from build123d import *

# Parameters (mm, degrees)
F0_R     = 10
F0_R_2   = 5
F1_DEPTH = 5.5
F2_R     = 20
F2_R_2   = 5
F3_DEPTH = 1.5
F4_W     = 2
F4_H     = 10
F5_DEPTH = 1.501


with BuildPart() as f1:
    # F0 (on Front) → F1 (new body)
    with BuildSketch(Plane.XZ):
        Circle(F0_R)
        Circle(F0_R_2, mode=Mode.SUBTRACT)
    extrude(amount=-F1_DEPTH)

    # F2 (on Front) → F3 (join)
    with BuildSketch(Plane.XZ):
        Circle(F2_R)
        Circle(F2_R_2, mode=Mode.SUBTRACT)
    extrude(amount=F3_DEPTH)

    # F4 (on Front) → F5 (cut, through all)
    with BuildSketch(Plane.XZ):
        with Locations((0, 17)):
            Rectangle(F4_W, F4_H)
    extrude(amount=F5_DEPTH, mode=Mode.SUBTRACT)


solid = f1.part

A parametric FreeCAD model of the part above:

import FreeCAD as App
import Part
import Sketcher
from FreeCAD import Vector


def add_polygon(sketch, points):
    """Adds a closed chain of lines whose ends are joined by coincident constraints."""
    first, n = sketch.GeometryCount, len(points)
    for a, b in zip(points, points[1:] + points[:1]):
        sketch.addGeometry(Part.LineSegment(App.Vector(*a, 0), App.Vector(*b, 0)), False)
    for i in range(n):
        sketch.addConstraint(Sketcher.Constraint("Coincident", first + i, 2, first + (i + 1) % n, 1))

doc = App.newDocument("Part")
body = doc.addObject("PartDesign::Body", "Body")

sketch1 = body.newObject("Sketcher::SketchObject", "Sketch")
sketch1.AttachmentSupport = (doc.getObject("XZ_Plane"), [""])
sketch1.MapMode = "FlatFace"
sketch1.addGeometry(Part.Circle(Vector(0, 0, 0), Vector(0, 0, 1), 10), False)
sketch1.addGeometry(Part.Circle(Vector(0, 0, 0), Vector(0, 0, 1), 5), False)
sketch1.addConstraint(Sketcher.Constraint("Coincident", 0, 3, -1, 1))
sketch1.addConstraint(Sketcher.Constraint("Coincident", 1, 3, -1, 1))
sketch1.addConstraint(Sketcher.Constraint("Diameter", 0, 20.0))
sketch1.addConstraint(Sketcher.Constraint("Diameter", 1, 10.0))
pad1 = body.newObject("PartDesign::Pad", "Pad")
pad1.Profile = sketch1
pad1.Length = 5.5
pad1.Reversed = True

sketch2 = body.newObject("Sketcher::SketchObject", "Sketch001")
sketch2.AttachmentSupport = (doc.getObject("XZ_Plane"), [""])
sketch2.MapMode = "FlatFace"
sketch2.addGeometry(Part.Circle(Vector(0, 0, 0), Vector(0, 0, 1), 20), False)
sketch2.addGeometry(Part.Circle(Vector(0, 0, 0), Vector(0, 0, 1), 5), False)
sketch2.addConstraint(Sketcher.Constraint("Coincident", 0, 3, -1, 1))
sketch2.addConstraint(Sketcher.Constraint("Coincident", 1, 3, -1, 1))
sketch2.addConstraint(Sketcher.Constraint("Diameter", 0, 40.0))
sketch2.addConstraint(Sketcher.Constraint("Diameter", 1, 10.0))
pad2 = body.newObject("PartDesign::Pad", "Pad001")
pad2.Profile = sketch2
pad2.Length = 1.5

sketch3 = body.newObject("Sketcher::SketchObject", "Sketch002")
sketch3.AttachmentSupport = (doc.getObject("XZ_Plane"), [""])
sketch3.MapMode = "FlatFace"
add_polygon(sketch3, [(-1, 22), (-1, 12), (1, 12), (1, 22)])
sketch3.addConstraint(Sketcher.Constraint("Vertical", 0))
sketch3.addConstraint(Sketcher.Constraint("Horizontal", 1))
sketch3.addConstraint(Sketcher.Constraint("Vertical", 2))
sketch3.addConstraint(Sketcher.Constraint("Horizontal", 3))
sketch3.addConstraint(Sketcher.Constraint("DistanceX", 1, 1, 1, 2, 2.0))
sketch3.addConstraint(Sketcher.Constraint("DistanceY", 0, 2, 0, 1, 10.0))
sketch3.addConstraint(Sketcher.Constraint("DistanceX", 0, 2, -1, 1, 1.0))
sketch3.addConstraint(Sketcher.Constraint("DistanceY", -1, 1, 0, 2, 12.0))
pocket1 = body.newObject("PartDesign::Pocket", "Pocket")
pocket1.Profile = sketch3
pocket1.Type = "ThroughAll"
pocket1.Reversed = True

doc.recompute()
